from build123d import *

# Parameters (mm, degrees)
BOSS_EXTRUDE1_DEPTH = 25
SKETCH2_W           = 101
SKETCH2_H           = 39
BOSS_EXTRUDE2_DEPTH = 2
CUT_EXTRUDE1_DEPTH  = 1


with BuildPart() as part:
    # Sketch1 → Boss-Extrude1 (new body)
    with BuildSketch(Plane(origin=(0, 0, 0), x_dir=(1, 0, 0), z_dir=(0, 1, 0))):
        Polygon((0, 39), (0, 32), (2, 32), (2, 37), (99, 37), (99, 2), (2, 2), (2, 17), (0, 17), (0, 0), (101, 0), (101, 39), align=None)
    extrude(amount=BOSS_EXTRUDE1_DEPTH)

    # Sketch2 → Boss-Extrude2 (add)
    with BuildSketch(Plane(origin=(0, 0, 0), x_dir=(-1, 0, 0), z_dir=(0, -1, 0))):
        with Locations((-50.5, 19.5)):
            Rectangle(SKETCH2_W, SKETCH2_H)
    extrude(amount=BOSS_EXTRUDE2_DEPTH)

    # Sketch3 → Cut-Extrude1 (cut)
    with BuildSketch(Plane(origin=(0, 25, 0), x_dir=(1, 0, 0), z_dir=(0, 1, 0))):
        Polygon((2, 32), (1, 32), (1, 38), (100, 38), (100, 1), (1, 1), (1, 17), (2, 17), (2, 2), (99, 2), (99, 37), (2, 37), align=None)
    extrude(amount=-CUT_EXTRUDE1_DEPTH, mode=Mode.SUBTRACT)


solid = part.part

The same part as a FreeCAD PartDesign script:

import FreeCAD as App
import Part
import Sketcher
from FreeCAD import Vector

doc = App.newDocument("Part")
params = doc.addObject("Spreadsheet::Sheet", "Params")
for row, (alias, value) in enumerate([
    ("sketch1_width", "2 mm"),
    ("sketch1_width2", "97 mm"),
    ("sketch1_width3", "101 mm"),
    ("sketch1_height", "7 mm"),
    ("sketch1_height2", "5 mm"),
    ("pad1_length", "25 mm"),
    ("sketch2_width", "101 mm"),
    ("sketch2_height", "39 mm"),
    ("pad2_length", "2 mm"),
    ("sketch3_width", "1 mm"),
    ("sketch3_width2", "97 mm"),
    ("sketch3_width3", "99 mm"),
    ("sketch3_height", "5 mm"),
    ("sketch3_height2", "35 mm"),
    ("pocket1_length", "1 mm"),
], start=1):
    params.set(f"A{row}", alias)
    params.set(f"B{row}", "=" + value)
    params.setAlias(f"B{row}", alias)

body = doc.addObject("PartDesign::Body", "Body")

# Sketch on XZ plane
sketch1 = body.newObject("Sketcher::SketchObject", "Sketch")
sketch1.AttachmentSupport = (doc.getObject("XZ_Plane"), [""])
sketch1.MapMode = "FlatFace"
sketch1.addGeometry([
    Part.LineSegment(Vector(0, -39, 0), Vector(0, -32, 0)),  # 0
    Part.LineSegment(Vector(0, -32, 0), Vector(2, -32, 0)),  # 1
    Part.LineSegment(Vector(2, -32, 0), Vector(2, -37, 0)),  # 2
    Part.LineSegment(Vector(2, -37, 0), Vector(99, -37, 0)),  # 3
    Part.LineSegment(Vector(99, -37, 0), Vector(99, -2, 0)),  # 4
    Part.LineSegment(Vector(99, -2, 0), Vector(2, -2, 0)),  # 5
    Part.LineSegment(Vector(2, -2, 0), Vector(2, -17, 0)),  # 6
    Part.LineSegment(Vector(2, -17, 0), Vector(0, -17, 0)),  # 7
    Part.LineSegment(Vector(0, -17, 0), Vector(0, 0, 0)),  # 8
    Part.LineSegment(Vector(0, 0, 0), Vector(101, 0, 0)),  # 9
    Part.LineSegment(Vector(101, 0, 0), Vector(101, -39, 0)),  # 10
    Part.LineSegment(Vector(101, -39, 0), Vector(0, -39, 0)),  # 11
], False)
sketch1.addConstraint([
    Sketcher.Constraint("Coincident", 0, 2, 1, 1),
    Sketcher.Constraint("Coincident", 1, 2, 2, 1),
    Sketcher.Constraint("Coincident", 2, 2, 3, 1),
    Sketcher.Constraint("Coincident", 3, 2, 4, 1),
    Sketcher.Constraint("Coincident", 4, 2, 5, 1),
    Sketcher.Constraint("Coincident", 5, 2, 6, 1),
    Sketcher.Constraint("Coincident", 6, 2, 7, 1),
    Sketcher.Constraint("Coincident", 7, 2, 8, 1),
    Sketcher.Constraint("Coincident", 8, 2, 9, 1),
    Sketcher.Constraint("Coincident", 9, 2, 10, 1),
    Sketcher.Constraint("Coincident", 10, 2, 11, 1),
    Sketcher.Constraint("Coincident", 11, 2, 0, 1),
    Sketcher.Constraint("Vertical", 0),
    Sketcher.Constraint("Horizontal", 1),
    Sketcher.Constraint("Vertical", 2),
    Sketcher.Constraint("Horizontal", 3),
    Sketcher.Constraint("Vertical", 4),
    Sketcher.Constraint("Horizontal", 5),
    Sketcher.Constraint("Vertical", 6),
    Sketcher.Constraint("Horizontal", 7),
    Sketcher.Constraint("Vertical", 8),
    Sketcher.Constraint("Horizontal", 9),
    Sketcher.Constraint("Vertical", 10),
    Sketcher.Constraint("Horizontal", 11),
    Sketcher.Constraint("Coincident", 8, 2, -1, 1),
    Sketcher.Constraint("PointOnObject", 0, 2, -2),
    Sketcher.Constraint("Vertical", 2, 2, 5, 2),
    Sketcher.Constraint("DistanceX", 1, 1, 1, 2, 2.0),
    Sketcher.Constraint("DistanceX", 3, 1, 3, 2, 97.0),
    Sketcher.Constraint("DistanceX", 9, 1, 9, 2, 101.0),
    Sketcher.Constraint("DistanceY", 0, 1, 0, 2, 7.0),
    Sketcher.Constraint("DistanceY", 2, 2, 2, 1, 5.0),
    Sketcher.Constraint("DistanceY", 4, 1, 4, 2, 35.0),
    Sketcher.Constraint("DistanceY", 6, 2, 6, 1, 15.0),
    Sketcher.Constraint("DistanceY", 8, 1, 8, 2, 17.0),
])
sketch1.setExpression("Constraints[27]", "Params.sketch1_width")
sketch1.setExpression("Constraints[28]", "Params.sketch1_width2")
sketch1.setExpression("Constraints[29]", "Params.sketch1_width3")
sketch1.setExpression("Constraints[30]", "Params.sketch1_height")
sketch1.setExpression("Constraints[31]", "Params.sketch1_height2")
pad1 = body.newObject("PartDesign::Pad", "Pad")
pad1.Profile = sketch1
pad1.setExpression("Length", "Params.pad1_length")
pad1.Reversed = True

# Sketch on XZ plane
sketch2 = body.newObject("Sketcher::SketchObject", "Sketch001")
sketch2.AttachmentSupport = (doc.getObject("XZ_Plane"), [""])
sketch2.MapMode = "FlatFace"
sketch2.addGeometry([
    Part.LineSegment(Vector(101, -39, 0), Vector(101, 0, 0)),
    Part.LineSegment(Vector(101, 0, 0), Vector(0, 0, 0)),
    Part.LineSegment(Vector(0, 0, 0), Vector(0, -39, 0)),
    Part.LineSegment(Vector(0, -39, 0), Vector(101, -39, 0)),
], False)
sketch2.addConstraint([
    Sketcher.Constraint("Coincident", 0, 2, 1, 1),
    Sketcher.Constraint("Coincident", 1, 2, 2, 1),
    Sketcher.Constraint("Coincident", 2, 2, 3, 1),
    Sketcher.Constraint("Coincident", 3, 2, 0, 1),
    Sketcher.Constraint("Vertical", 0),
    Sketcher.Constraint("Horizontal", 1),
    Sketcher.Constraint("Vertical", 2),
    Sketcher.Constraint("Horizontal", 3),
    Sketcher.Constraint("Coincident", 1, 2, -1, 1),
    Sketcher.Constraint("DistanceX", 1, 2, 1, 1, 101.0),
    Sketcher.Constraint("DistanceY", 0, 1, 0, 2, 39.0),
])
sketch2.setExpression("Constraints[9]", "Params.sketch2_width")
sketch2.setExpression("Constraints[10]", "Params.sketch2_height")
pad2 = body.newObject("PartDesign::Pad", "Pad001")
pad2.Profile = sketch2
pad2.setExpression("Length", "Params.pad2_length")

# Sketch on XZ plane
sketch3 = body.newObject("Sketcher::SketchObject", "Sketch002")
sketch3.AttachmentSupport = (doc.getObject("XZ_Plane"), [""])
sketch3.MapMode = "FlatFace"
sketch3.AttachmentOffset = App.Placement(Vector(0, 0, -25), App.Rotation())
sketch3.addGeometry([
    Part.LineSegment(Vector(1, -32, 0), Vector(2, -32, 0)),  # 0
    Part.LineSegment(Vector(2, -32, 0), Vector(2, -37, 0)),  # 1
    Part.LineSegment(Vector(2, -37, 0), Vector(99, -37, 0)),  # 2
    Part.LineSegment(Vector(99, -37, 0), Vector(99, -2, 0)),  # 3
    Part.LineSegment(Vector(99, -2, 0), Vector(2, -2, 0)),  # 4
    Part.LineSegment(Vector(2, -2, 0), Vector(2, -17, 0)),  # 5
    Part.LineSegment(Vector(2, -17, 0), Vector(1, -17, 0)),  # 6
    Part.LineSegment(Vector(1, -17, 0), Vector(1, -1, 0)),  # 7
    Part.LineSegment(Vector(1, -1, 0), Vector(100, -1, 0)),  # 8
    Part.LineSegment(Vector(100, -1, 0), Vector(100, -38, 0)),  # 9
    Part.LineSegment(Vector(100, -38, 0), Vector(1, -38, 0)),  # 10
    Part.LineSegment(Vector(1, -38, 0), Vector(1, -32, 0)),  # 11
], False)
sketch3.addConstraint([
    Sketcher.Constraint("Coincident", 0, 2, 1, 1),
    Sketcher.Constraint("Coincident", 1, 2, 2, 1),
    Sketcher.Constraint("Coincident", 2, 2, 3, 1),
    Sketcher.Constraint("Coincident", 3, 2, 4, 1),
    Sketcher.Constraint("Coincident", 4, 2, 5, 1),
    Sketcher.Constraint("Coincident", 5, 2, 6, 1),
    Sketcher.Constraint("Coincident", 6, 2, 7, 1),
    Sketcher.Constraint("Coincident", 7, 2, 8, 1),
    Sketcher.Constraint("Coincident", 8, 2, 9, 1),
    Sketcher.Constraint("Coincident", 9, 2, 10, 1),
    Sketcher.Constraint("Coincident", 10, 2, 11, 1),
    Sketcher.Constraint("Coincident", 11, 2, 0, 1),
    Sketcher.Constraint("Horizontal", 0),
    Sketcher.Constraint("Vertical", 1),
    Sketcher.Constraint("Horizontal", 2),
    Sketcher.Constraint("Vertical", 3),
    Sketcher.Constraint("Horizontal", 4),
    Sketcher.Constraint("Vertical", 5),
    Sketcher.Constraint("Horizontal", 6),
    Sketcher.Constraint("Vertical", 7),
    Sketcher.Constraint("Horizontal", 8),
    Sketcher.Constraint("Vertical", 9),
    Sketcher.Constraint("Horizontal", 10),
    Sketcher.Constraint("Vertical", 11),
    Sketcher.Constraint("Vertical", 1, 2, 4, 2),
    Sketcher.Constraint("Vertical", 7, 2, 10, 2),
    Sketcher.Constraint("DistanceX", 0, 1, 0, 2, 1.0),
    Sketcher.Constraint("DistanceX", 2, 1, 2, 2, 97.0),
    Sketcher.Constraint("DistanceX", 8, 1, 8, 2, 99.0),
    Sketcher.Constraint("DistanceY", 1, 2, 1, 1, 5.0),
    Sketcher.Constraint("DistanceY", 3, 1, 3, 2, 35.0),
    Sketcher.Constraint("DistanceY", 5, 2, 5, 1, 15.0),
    Sketcher.Constraint("DistanceY", 7, 1, 7, 2, 16.0),
    Sketcher.Constraint("DistanceY", 9, 2, 9, 1, 37.0),
    Sketcher.Constraint("DistanceX", -1, 1, 0, 2, 2.0),
    Sketcher.Constraint("DistanceY", 0, 2, -1, 1, 32.0),
])
sketch3.setExpression("Constraints[26]", "Params.sketch3_width")
sketch3.setExpression("Constraints[27]", "Params.sketch3_width2")
sketch3.setExpression("Constraints[28]", "Params.sketch3_width3")
sketch3.setExpression("Constraints[29]", "Params.sketch3_height")
sketch3.setExpression("Constraints[30]", "Params.sketch3_height2")
pocket1 = body.newObject("PartDesign::Pocket", "Pocket")
pocket1.Profile = sketch3
pocket1.setExpression("Length", "Params.pocket1_length")
pocket1.Reversed = True

doc.recompute()
